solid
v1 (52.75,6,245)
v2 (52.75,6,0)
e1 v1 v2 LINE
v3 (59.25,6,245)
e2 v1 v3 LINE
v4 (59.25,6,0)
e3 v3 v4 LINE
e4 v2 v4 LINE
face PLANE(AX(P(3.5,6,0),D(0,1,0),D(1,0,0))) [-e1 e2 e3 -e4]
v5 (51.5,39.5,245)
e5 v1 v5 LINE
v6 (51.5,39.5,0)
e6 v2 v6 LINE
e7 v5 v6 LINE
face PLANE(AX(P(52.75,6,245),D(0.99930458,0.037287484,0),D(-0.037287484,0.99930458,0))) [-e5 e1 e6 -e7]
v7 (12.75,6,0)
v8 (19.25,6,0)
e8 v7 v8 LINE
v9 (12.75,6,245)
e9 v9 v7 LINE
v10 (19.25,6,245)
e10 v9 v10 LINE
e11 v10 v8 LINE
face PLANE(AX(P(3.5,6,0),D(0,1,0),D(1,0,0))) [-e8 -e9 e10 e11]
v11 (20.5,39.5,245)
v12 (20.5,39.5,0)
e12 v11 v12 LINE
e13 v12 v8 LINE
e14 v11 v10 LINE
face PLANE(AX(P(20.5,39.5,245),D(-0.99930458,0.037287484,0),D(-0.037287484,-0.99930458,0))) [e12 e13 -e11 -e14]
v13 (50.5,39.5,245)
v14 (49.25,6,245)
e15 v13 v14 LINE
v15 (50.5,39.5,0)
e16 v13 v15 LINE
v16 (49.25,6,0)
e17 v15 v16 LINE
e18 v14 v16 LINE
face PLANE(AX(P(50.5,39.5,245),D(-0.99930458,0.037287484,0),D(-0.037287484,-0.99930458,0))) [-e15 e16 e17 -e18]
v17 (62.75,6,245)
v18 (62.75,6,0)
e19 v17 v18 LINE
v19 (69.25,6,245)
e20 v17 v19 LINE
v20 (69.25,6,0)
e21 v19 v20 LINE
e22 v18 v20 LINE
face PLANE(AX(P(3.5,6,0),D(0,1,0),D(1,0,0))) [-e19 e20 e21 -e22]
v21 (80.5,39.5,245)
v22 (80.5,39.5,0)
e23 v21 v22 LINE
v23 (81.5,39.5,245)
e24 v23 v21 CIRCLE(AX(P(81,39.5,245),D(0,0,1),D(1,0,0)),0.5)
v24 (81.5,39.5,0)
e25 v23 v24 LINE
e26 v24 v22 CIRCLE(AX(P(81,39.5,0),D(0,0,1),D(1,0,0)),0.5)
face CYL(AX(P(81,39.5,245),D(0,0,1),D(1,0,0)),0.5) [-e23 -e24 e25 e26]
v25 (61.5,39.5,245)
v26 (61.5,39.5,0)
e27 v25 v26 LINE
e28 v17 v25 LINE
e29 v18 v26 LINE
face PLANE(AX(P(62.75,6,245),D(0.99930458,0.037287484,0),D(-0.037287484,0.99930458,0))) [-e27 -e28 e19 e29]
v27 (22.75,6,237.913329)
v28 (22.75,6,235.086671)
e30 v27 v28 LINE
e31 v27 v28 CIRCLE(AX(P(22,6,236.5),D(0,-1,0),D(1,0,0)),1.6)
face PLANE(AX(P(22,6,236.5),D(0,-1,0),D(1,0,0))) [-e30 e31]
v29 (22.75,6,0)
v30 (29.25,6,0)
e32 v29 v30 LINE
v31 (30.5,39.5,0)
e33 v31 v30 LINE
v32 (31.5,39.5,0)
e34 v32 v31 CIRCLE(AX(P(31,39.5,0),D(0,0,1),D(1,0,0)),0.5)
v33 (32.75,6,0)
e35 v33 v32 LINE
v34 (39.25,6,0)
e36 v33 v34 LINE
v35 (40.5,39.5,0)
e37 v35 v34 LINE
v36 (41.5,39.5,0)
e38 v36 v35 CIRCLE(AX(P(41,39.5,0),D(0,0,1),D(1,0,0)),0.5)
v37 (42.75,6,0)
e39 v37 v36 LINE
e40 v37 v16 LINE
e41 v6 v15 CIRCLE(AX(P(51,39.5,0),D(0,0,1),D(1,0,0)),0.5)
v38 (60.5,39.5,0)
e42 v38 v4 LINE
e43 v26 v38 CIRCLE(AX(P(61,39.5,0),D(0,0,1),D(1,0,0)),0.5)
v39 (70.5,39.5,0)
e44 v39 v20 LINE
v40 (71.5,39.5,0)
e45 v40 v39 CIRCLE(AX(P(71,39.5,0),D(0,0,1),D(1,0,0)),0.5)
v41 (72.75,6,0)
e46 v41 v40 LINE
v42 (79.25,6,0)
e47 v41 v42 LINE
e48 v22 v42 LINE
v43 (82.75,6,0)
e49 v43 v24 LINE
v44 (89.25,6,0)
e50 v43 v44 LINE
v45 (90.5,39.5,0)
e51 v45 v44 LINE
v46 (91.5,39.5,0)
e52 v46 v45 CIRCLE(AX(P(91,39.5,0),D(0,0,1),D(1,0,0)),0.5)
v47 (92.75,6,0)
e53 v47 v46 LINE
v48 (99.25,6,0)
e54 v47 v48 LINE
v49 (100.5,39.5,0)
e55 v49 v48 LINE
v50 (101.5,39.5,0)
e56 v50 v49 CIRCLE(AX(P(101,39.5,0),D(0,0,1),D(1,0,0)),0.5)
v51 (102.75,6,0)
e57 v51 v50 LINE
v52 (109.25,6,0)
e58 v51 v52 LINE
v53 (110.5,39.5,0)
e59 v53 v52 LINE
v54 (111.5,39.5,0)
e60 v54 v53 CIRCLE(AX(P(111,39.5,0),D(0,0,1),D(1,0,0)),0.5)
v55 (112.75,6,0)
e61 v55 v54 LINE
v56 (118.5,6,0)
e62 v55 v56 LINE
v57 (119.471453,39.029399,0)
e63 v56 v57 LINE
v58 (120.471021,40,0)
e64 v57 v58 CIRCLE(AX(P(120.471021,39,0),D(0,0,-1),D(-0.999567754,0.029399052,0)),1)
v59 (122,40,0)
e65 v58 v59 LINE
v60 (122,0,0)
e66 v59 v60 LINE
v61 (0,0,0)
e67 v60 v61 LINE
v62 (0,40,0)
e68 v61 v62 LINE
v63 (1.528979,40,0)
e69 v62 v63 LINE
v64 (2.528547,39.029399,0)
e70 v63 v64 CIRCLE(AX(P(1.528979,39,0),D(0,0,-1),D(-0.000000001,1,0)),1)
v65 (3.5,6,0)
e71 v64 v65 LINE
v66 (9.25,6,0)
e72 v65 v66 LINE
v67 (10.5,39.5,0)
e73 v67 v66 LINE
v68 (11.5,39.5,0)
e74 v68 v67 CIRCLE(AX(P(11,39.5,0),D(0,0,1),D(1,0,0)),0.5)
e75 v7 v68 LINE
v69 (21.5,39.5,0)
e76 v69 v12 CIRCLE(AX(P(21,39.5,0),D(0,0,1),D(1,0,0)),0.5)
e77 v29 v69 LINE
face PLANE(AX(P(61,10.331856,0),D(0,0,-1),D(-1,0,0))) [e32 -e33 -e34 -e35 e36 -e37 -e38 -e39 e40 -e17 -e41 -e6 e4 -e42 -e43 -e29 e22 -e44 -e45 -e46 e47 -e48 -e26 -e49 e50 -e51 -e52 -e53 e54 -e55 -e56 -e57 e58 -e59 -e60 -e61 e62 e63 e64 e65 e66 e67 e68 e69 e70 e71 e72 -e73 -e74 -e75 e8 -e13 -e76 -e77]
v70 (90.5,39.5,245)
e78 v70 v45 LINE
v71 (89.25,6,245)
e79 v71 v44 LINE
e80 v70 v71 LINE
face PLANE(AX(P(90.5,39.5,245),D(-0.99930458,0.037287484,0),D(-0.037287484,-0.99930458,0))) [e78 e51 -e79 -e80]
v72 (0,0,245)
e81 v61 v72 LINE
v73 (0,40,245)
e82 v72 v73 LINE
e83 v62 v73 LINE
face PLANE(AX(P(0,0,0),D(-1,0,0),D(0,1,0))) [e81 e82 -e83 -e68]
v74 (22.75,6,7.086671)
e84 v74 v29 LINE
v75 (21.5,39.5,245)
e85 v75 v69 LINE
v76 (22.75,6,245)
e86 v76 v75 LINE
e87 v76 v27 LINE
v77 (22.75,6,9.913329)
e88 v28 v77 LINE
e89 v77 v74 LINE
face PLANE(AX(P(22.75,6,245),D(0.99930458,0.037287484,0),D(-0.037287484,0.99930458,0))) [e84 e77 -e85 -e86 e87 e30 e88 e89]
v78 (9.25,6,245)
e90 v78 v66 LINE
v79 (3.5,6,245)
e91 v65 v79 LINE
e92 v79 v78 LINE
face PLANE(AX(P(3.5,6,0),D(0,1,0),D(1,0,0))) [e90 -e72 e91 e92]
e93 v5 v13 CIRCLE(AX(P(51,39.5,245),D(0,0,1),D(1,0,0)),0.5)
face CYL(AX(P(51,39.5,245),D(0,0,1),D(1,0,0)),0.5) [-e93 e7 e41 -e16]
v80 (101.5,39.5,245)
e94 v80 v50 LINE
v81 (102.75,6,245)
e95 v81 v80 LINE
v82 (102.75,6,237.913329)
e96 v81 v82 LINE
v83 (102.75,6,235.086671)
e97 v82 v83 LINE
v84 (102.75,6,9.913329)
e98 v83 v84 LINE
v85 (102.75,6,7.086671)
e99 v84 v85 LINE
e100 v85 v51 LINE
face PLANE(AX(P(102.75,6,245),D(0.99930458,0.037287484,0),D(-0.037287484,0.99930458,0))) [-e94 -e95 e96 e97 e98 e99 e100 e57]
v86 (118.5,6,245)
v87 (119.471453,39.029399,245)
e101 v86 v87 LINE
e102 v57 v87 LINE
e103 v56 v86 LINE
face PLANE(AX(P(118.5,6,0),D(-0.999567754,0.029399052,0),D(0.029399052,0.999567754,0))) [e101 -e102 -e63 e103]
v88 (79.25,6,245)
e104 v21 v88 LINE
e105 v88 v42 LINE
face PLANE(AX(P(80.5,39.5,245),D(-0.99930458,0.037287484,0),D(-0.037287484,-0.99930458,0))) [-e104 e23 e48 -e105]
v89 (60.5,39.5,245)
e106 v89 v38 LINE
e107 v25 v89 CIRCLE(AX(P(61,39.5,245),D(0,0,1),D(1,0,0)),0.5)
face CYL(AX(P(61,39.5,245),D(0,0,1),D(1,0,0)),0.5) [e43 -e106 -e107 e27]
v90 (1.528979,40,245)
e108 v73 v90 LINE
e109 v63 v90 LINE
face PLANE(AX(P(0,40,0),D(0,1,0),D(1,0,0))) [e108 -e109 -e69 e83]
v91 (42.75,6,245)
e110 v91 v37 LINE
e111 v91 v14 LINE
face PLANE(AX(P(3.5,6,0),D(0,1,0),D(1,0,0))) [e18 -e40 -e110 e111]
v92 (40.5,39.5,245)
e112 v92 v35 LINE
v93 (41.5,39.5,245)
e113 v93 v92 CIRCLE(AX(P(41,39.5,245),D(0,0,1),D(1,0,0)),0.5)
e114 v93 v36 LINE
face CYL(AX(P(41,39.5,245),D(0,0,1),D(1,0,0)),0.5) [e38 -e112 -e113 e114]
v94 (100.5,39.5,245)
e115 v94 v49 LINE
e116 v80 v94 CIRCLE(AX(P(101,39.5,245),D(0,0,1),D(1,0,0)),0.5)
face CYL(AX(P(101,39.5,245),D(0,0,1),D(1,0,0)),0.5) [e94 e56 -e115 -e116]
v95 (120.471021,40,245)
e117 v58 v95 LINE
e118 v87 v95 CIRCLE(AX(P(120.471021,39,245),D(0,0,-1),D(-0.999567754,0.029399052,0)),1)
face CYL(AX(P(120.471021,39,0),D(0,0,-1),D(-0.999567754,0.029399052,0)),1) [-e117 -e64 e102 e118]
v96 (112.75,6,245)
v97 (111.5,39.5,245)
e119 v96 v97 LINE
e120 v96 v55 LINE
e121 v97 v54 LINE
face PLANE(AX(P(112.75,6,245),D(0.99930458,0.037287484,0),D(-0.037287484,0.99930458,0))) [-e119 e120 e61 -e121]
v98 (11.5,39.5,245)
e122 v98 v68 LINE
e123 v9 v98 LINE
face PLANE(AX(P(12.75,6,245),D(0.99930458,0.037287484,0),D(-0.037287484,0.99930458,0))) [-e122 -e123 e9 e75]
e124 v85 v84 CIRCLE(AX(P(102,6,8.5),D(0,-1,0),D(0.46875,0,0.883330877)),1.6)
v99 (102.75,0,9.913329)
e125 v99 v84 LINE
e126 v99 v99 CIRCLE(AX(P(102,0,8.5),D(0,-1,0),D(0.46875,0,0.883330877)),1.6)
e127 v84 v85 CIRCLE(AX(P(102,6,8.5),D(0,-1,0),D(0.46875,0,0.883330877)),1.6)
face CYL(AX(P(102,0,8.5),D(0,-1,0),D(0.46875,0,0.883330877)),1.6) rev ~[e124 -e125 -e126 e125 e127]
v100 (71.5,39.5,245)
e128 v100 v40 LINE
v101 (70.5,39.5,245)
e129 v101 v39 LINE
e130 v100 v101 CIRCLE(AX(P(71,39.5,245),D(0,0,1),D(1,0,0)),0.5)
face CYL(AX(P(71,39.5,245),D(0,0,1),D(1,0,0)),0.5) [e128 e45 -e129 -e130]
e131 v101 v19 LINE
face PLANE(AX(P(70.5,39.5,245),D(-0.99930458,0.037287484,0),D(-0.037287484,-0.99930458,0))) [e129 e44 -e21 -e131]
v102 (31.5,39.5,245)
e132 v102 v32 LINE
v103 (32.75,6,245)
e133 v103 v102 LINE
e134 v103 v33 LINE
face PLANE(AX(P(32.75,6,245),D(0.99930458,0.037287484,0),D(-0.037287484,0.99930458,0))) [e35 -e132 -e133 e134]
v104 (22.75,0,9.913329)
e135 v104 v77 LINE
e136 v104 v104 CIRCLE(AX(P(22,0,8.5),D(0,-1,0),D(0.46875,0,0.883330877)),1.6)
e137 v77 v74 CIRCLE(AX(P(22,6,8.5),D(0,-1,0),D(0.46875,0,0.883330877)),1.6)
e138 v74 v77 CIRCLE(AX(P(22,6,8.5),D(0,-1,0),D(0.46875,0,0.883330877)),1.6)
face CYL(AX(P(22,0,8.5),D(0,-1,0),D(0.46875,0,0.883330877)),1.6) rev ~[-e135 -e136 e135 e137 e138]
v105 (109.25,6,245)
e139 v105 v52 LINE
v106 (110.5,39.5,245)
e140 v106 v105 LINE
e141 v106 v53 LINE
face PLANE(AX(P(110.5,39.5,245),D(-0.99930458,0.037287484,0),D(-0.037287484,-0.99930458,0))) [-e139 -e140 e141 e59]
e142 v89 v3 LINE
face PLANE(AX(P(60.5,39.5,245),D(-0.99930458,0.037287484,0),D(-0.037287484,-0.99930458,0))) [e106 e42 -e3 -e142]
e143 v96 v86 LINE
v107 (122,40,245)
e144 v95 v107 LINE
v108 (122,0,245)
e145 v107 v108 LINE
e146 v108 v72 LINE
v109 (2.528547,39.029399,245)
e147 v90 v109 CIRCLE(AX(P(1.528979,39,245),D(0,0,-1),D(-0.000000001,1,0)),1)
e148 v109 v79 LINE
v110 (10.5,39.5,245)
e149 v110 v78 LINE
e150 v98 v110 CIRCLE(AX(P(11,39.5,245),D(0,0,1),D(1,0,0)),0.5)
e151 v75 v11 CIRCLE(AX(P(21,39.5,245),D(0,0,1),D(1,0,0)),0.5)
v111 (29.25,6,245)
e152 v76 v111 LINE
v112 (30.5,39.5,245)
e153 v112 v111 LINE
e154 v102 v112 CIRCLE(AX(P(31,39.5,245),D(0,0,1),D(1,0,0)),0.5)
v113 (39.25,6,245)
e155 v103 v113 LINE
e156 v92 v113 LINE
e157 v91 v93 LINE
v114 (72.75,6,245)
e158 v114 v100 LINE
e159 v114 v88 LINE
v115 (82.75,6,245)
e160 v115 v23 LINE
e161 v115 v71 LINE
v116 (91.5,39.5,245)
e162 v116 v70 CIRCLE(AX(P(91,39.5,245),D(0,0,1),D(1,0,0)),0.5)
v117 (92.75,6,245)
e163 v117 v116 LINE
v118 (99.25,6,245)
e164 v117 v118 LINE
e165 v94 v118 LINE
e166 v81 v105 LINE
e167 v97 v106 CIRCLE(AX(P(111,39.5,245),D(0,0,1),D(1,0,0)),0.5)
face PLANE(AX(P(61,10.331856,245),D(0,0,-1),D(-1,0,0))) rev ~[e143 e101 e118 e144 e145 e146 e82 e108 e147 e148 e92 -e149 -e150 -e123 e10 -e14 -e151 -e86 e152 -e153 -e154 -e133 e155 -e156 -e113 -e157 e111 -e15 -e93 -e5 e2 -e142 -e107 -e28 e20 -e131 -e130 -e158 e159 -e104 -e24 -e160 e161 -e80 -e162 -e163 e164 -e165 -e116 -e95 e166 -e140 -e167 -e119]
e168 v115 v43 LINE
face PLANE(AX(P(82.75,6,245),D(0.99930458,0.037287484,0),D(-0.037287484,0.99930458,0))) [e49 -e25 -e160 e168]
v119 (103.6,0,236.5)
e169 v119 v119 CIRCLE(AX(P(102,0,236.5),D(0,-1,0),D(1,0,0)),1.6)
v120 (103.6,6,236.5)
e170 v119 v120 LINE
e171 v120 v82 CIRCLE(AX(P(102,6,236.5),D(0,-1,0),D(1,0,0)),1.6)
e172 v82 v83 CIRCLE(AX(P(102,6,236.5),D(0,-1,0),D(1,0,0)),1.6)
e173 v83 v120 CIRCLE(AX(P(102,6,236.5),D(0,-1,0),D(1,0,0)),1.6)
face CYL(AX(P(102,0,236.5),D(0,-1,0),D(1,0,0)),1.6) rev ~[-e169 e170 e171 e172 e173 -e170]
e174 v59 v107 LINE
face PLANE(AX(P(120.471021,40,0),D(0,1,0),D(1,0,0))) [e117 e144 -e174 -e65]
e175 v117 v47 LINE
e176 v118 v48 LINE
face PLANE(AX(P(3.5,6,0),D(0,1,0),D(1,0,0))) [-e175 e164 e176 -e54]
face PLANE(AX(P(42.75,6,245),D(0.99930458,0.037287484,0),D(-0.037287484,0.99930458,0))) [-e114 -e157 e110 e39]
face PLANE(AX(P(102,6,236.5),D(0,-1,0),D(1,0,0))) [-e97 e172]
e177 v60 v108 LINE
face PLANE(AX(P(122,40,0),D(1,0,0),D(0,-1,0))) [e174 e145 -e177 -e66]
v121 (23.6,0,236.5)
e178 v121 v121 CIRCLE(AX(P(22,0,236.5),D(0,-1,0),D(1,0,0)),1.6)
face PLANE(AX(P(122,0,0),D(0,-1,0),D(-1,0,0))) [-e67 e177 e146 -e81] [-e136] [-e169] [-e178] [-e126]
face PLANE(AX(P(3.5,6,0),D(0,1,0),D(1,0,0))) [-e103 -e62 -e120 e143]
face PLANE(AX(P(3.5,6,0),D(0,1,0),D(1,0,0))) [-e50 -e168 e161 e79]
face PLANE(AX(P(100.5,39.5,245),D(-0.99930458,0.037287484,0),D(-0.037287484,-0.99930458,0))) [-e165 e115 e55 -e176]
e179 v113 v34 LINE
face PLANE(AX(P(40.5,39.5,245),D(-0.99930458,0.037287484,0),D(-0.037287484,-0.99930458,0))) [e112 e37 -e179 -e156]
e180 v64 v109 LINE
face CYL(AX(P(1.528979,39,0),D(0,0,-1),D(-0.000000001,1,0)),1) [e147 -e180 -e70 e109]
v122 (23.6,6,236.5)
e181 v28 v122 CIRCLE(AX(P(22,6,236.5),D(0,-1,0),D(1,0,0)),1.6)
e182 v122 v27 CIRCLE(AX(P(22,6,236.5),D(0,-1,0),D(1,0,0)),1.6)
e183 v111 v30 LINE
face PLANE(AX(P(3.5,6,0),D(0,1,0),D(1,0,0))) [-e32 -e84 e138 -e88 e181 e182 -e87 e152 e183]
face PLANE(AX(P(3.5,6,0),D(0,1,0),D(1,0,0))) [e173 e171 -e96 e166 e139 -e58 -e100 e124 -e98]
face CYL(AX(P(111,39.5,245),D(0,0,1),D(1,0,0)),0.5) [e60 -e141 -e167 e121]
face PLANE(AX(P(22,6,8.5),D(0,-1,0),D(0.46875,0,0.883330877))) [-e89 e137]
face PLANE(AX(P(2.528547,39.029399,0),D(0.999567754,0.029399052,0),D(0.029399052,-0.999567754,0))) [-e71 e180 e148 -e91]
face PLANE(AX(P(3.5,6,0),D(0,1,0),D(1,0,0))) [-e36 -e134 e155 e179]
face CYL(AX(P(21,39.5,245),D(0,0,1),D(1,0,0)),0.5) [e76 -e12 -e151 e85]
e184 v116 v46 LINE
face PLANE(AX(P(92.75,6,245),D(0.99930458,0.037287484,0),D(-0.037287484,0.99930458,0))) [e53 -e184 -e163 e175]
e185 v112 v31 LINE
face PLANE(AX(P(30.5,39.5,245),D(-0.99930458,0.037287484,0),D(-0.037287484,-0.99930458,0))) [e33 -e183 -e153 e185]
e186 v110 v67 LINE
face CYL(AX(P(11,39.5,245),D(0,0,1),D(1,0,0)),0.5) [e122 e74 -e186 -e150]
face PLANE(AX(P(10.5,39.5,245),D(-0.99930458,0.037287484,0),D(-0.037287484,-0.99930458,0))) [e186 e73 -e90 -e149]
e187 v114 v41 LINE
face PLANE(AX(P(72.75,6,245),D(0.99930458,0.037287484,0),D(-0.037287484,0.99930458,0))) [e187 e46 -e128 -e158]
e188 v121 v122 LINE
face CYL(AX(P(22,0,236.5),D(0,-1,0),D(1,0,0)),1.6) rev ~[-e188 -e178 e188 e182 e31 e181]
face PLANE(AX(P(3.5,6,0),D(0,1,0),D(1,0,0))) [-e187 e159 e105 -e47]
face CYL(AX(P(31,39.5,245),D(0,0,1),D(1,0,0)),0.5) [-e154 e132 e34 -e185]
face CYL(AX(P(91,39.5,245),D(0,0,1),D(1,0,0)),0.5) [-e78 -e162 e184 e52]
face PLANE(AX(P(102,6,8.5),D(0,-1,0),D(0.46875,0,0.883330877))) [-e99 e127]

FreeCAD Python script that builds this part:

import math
import FreeCAD as App
import Part
import Sketcher
Q = App.Units.Quantity

doc = App.newDocument("Part")
body = doc.addObject("PartDesign::Body", "Body")

# Sketch on XY plane
sketch1 = body.newObject("Sketcher::SketchObject", "Sketch")
sketch1.AttachmentSupport = (doc.getObject("XY_Plane"), [""])
sketch1.MapMode = "FlatFace"
sketch1.addGeometry(Part.LineSegment(App.Vector(1.528979, 40, 0), App.Vector(0, 40, 0)), False)
sketch1.addGeometry(Part.LineSegment(App.Vector(0, 40, 0), App.Vector(0, 0, 0)), False)
sketch1.addGeometry(Part.LineSegment(App.Vector(0, 0, 0), App.Vector(122, 0, 0)), False)
sketch1.addGeometry(Part.LineSegment(App.Vector(122, 0, 0), App.Vector(122, 40, 0)), False)
sketch1.addGeometry(Part.LineSegment(App.Vector(122, 40, 0), App.Vector(120.471021, 40, 0)), False)
sketch1.addGeometry(Part.ArcOfCircle(Part.Circle(App.Vector(120.471021, 39, 0), App.Vector(0, 0, 1), 1), math.radians(90), math.radians(178.315316)), False)
sketch1.addGeometry(Part.LineSegment(App.Vector(119.471453, 39.029399, 0), App.Vector(118.5, 6, 0)), False)
sketch1.addGeometry(Part.LineSegment(App.Vector(118.5, 6, 0), App.Vector(3.5, 6, 0)), False)
sketch1.addGeometry(Part.LineSegment(App.Vector(3.5, 6, 0), App.Vector(2.528547, 39.029399, 0)), False)
sketch1.addGeometry(Part.ArcOfCircle(Part.Circle(App.Vector(1.528979, 39, 0), App.Vector(0, 0, 1), 1), math.radians(1.684684), math.radians(90)), False)
sketch1.addConstraint(Sketcher.Constraint("Coincident", 0, 2, 1, 1))
sketch1.addConstraint(Sketcher.Constraint("Coincident", 1, 2, 2, 1))
sketch1.addConstraint(Sketcher.Constraint("Coincident", 2, 2, 3, 1))
sketch1.addConstraint(Sketcher.Constraint("Coincident", 3, 2, 4, 1))
sketch1.addConstraint(Sketcher.Constraint("Tangent", 4, 2, 5, 1))
sketch1.addConstraint(Sketcher.Constraint("Tangent", 5, 2, 6, 1))
sketch1.addConstraint(Sketcher.Constraint("Coincident", 6, 2, 7, 1))
sketch1.addConstraint(Sketcher.Constraint("Coincident", 7, 2, 8, 1))
sketch1.addConstraint(Sketcher.Constraint("Tangent", 8, 2, 9, 1))
sketch1.addConstraint(Sketcher.Constraint("Tangent", 9, 2, 0, 1))
sketch1.addConstraint(Sketcher.Constraint("Horizontal", 0))
sketch1.addConstraint(Sketcher.Constraint("Vertical", 1))
sketch1.addConstraint(Sketcher.Constraint("Horizontal", 2))
sketch1.addConstraint(Sketcher.Constraint("Vertical", 3))
sketch1.addConstraint(Sketcher.Constraint("Horizontal", 4))
sketch1.addConstraint(Sketcher.Constraint("Horizontal", 7))
sketch1.addConstraint(Sketcher.Constraint("Coincident", 1, 2, -1, 1))
sketch1.addConstraint(Sketcher.Constraint("Equal", 5, 9))
sketch1.addConstraint(Sketcher.Constraint("Horizontal", 5, 3, 9, 3))
sketch1.addConstraint(Sketcher.Constraint("Horizontal", 5, 2, 8, 2))
sketch1.addConstraint(Sketcher.Constraint("Equal", 0, 4))
sketch1.addConstraint(Sketcher.Constraint("Radius", 5, Q("1 mm")))
sketch1.addConstraint(Sketcher.Constraint("DistanceX", 2, 1, 2, 2, Q("122 mm")))
sketch1.addConstraint(Sketcher.Constraint("DistanceX", 7, 2, 7, 1, Q("115 mm")))
sketch1.addConstraint(Sketcher.Constraint("DistanceY", 1, 2, 1, 1, Q("40 mm")))
sketch1.addConstraint(Sketcher.Constraint("DistanceY", -1, 1, 6, 2, Q("6 mm")))
sketch1.addConstraint(Sketcher.Constraint("DistanceX", 0, 2, 0, 1, Q("1.528979 mm")))
pad1 = body.newObject("PartDesign::Pad", "Pad")
pad1.Profile = sketch1
pad1.Length = 245

# Sketch on XY plane
sketch2 = body.newObject("Sketcher::SketchObject", "Sketch001")
sketch2.AttachmentSupport = (doc.getObject("XY_Plane"), [""])
sketch2.MapMode = "FlatFace"
sketch2.AttachmentOffset = App.Placement(App.Vector(0, 0, 245), App.Rotation())
sketch2.addGeometry(Part.LineSegment(App.Vector(10.5, 39.5, 0), App.Vector(9.25, 6, 0)), False)
sketch2.addGeometry(Part.LineSegment(App.Vector(9.25, 6, 0), App.Vector(12.75, 6, 0)), False)
sketch2.addGeometry(Part.LineSegment(App.Vector(12.75, 6, 0), App.Vector(11.5, 39.5, 0)), False)
sketch2.addGeometry(Part.ArcOfCircle(Part.Circle(App.Vector(11, 39.5, 0), App.Vector(0, 0, 1), 0.5), math.radians(0), math.radians(180)), False)
sketch2.addConstraint(Sketcher.Constraint("Coincident", 0, 2, 1, 1))
sketch2.addConstraint(Sketcher.Constraint("Coincident", 1, 2, 2, 1))
sketch2.addConstraint(Sketcher.Constraint("Coincident", 2, 2, 3, 1))
sketch2.addConstraint(Sketcher.Constraint("Coincident", 3, 2, 0, 1))
sketch2.addConstraint(Sketcher.Constraint("Horizontal", 1))
sketch2.addConstraint(Sketcher.Constraint("Horizontal", 3, 3, 2, 2))
sketch2.addConstraint(Sketcher.Constraint("Horizontal", 2, 2, 3, 2))
sketch2.addConstraint(Sketcher.Constraint("Equal", 0, 2))
sketch2.addConstraint(Sketcher.Constraint("Radius", 3, Q("0.5 mm")))
sketch2.addConstraint(Sketcher.Constraint("DistanceX", 1, 1, 1, 2, Q("3.5 mm")))
sketch2.addConstraint(Sketcher.Constraint("DistanceX", -1, 1, 3, 3, Q("11 mm")))
sketch2.addConstraint(Sketcher.Constraint("DistanceY", -1, 1, 0, 2, Q("6 mm")))
sketch2.addConstraint(Sketcher.Constraint("DistanceY", -1, 1, 3, 3, Q("39.5 mm")))
pad2 = body.newObject("PartDesign::Pad", "Pad001")
pad2.Profile = sketch2
pad2.Length = 245
pad2.Reversed = True
doc.recompute()

linearpattern = body.newObject("PartDesign::LinearPattern", "LinearPattern")
linearpattern.Originals = [pad2]
linearpattern.Direction = (doc.getObject("X_Axis"), [""])
linearpattern.Mode = "offset"
linearpattern.Offset = 10
linearpattern.Occurrences = 11
body.Tip = linearpattern

# Sketch on XZ plane
sketch3 = body.newObject("Sketcher::SketchObject", "Sketch002")
sketch3.AttachmentSupport = (doc.getObject("XZ_Plane"), [""])
sketch3.MapMode = "FlatFace"
sketch3.addGeometry(Part.Circle(App.Vector(22, 236.5, 0), App.Vector(0, 0, 1), 1.6), False)
sketch3.addGeometry(Part.Circle(App.Vector(102, 236.5, 0), App.Vector(0, 0, 1), 1.6), False)
sketch3.addGeometry(Part.Circle(App.Vector(102, 8.5, 0), App.Vector(0, 0, 1), 1.6), False)
sketch3.addGeometry(Part.Circle(App.Vector(22, 8.5, 0), App.Vector(0, 0, 1), 1.6), False)
sketch3.addConstraint(Sketcher.Constraint("Equal", 0, 1))
sketch3.addConstraint(Sketcher.Constraint("Equal", 1, 2))
sketch3.addConstraint(Sketcher.Constraint("Equal", 2, 3))
sketch3.addConstraint(Sketcher.Constraint("Horizontal", 0, 3, 1, 3))
sketch3.addConstraint(Sketcher.Constraint("Horizontal", 2, 3, 3, 3))
sketch3.addConstraint(Sketcher.Constraint("Vertical", 1, 3, 2, 3))
sketch3.addConstraint(Sketcher.Constraint("Vertical", 0, 3, 3, 3))
sketch3.addConstraint(Sketcher.Constraint("Diameter", 0, Q("3.2 mm")))
sketch3.addConstraint(Sketcher.Constraint("DistanceX", -1, 1, 0, 3, Q("22 mm")))
sketch3.addConstraint(Sketcher.Constraint("DistanceX", -1, 1, 1, 3, Q("102 mm")))
sketch3.addConstraint(Sketcher.Constraint("DistanceY", 2, 3, 1, 3, Q("228 mm")))
sketch3.addConstraint(Sketcher.Constraint("DistanceY", -1, 1, 0, 3, Q("236.5 mm")))
pocket1 = body.newObject("PartDesign::Pocket", "Pocket")
pocket1.Profile = sketch3
pocket1.Length = 6

doc.recompute()
